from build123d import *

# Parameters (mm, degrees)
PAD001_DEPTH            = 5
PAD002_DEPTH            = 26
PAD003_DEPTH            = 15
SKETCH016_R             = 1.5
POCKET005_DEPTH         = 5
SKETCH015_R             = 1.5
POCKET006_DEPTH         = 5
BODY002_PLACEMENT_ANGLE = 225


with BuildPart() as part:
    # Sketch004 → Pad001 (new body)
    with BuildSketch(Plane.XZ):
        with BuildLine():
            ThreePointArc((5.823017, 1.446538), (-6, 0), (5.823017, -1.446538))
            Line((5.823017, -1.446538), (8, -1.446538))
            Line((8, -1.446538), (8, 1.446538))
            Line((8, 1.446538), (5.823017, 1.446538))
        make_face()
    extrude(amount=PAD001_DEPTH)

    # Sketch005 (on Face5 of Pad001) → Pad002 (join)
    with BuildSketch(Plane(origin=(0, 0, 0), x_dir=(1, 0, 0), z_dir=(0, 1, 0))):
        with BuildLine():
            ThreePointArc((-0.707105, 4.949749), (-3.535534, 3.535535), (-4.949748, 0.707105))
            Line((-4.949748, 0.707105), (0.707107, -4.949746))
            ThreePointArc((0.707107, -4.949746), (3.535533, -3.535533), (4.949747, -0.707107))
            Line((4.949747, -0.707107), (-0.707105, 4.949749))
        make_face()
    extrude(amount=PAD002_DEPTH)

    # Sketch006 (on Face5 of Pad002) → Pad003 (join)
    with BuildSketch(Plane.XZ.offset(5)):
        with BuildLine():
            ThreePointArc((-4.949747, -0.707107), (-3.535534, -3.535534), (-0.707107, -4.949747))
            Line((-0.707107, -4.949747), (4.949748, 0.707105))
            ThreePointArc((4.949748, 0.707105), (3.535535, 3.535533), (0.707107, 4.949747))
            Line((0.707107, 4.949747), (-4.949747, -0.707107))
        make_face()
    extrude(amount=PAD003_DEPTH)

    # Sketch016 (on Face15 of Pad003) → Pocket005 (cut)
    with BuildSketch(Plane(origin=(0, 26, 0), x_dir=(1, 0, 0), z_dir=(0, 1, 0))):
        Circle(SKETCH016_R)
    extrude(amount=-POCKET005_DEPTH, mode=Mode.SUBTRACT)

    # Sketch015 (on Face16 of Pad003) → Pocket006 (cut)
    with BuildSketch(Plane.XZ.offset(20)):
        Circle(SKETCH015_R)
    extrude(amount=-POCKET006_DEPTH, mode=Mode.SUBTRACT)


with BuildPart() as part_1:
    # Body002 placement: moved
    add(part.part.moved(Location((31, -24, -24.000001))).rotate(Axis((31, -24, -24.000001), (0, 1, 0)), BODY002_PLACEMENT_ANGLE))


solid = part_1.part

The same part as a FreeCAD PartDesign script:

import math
import FreeCAD as App
import Part
import Sketcher

V = App.Vector
Q = App.Units.Quantity

doc = App.newDocument("Part")
params = doc.addObject("Spreadsheet::Sheet", "Params")
for row, (alias, value) in enumerate([
    ("sketch1_radius", "6 mm"),
    ("pad1_length", "5 mm"),
    ("sketch2_radius", "5 mm"),
    ("sketch2_length", "7.999998 mm"),
    ("pad2_length", "26 mm"),
    ("sketch3_radius", "4.999999 mm"),
    ("sketch3_length", "7.999999 mm"),
    ("pad3_length", "15 mm"),
    ("sketch4_diameter", "3 mm"),
    ("pocket1_length", "5 mm"),
    ("sketch5_diameter", "3 mm"),
    ("pocket2_length", "5 mm"),
], start=1):
    params.set(f"A{row}", alias)
    params.set(f"B{row}", "=" + value)
    params.setAlias(f"B{row}", alias)

body = doc.addObject("PartDesign::Body", "Body")

# Sketch on XZ plane
sketch1 = doc.addObject("Sketcher::SketchObject", "Sketch")
body.addObject(sketch1)
sketch1.AttachmentSupport = (doc.XZ_Plane, [""])
sketch1.MapMode = "FlatFace"
sketch1.addGeometry([
    Part.ArcOfCircle(Part.Circle(V(0, 0, 0), V(0, 0, 1), 6), math.radians(14), math.radians(346)),
    Part.LineSegment(V(5.8, -1.4, 0), V(8, -1.4, 0)),
    Part.LineSegment(V(8, -1.4, 0), V(8, 1.4, 0)),
    Part.LineSegment(V(8, 1.4, 0), V(5.8, 1.4, 0)),
], False)
sketch1.addConstraint([
    Sketcher.Constraint("Coincident", 0, 2, 1, 1),
    Sketcher.Constraint("Coincident", 1, 2, 2, 1),
    Sketcher.Constraint("Coincident", 2, 2, 3, 1),
    Sketcher.Constraint("Coincident", 3, 2, 0, 1),
    Sketcher.Constraint("Horizontal", 1),
    Sketcher.Constraint("Vertical", 2),
    Sketcher.Constraint("Horizontal", 3),
    Sketcher.Constraint("Coincident", 0, 3, -1, 1),
    Sketcher.Constraint("Vertical", 0, 2, 3, 2),
    Sketcher.Constraint("Radius", 0, Q("6 mm")),
    Sketcher.Constraint("DistanceX", -1, 1, 1, 2, Q("8 mm")),
    Sketcher.Constraint("DistanceX", 1, 1, 1, 2, Q("2.176983 mm")),
])
sketch1.setExpression("Constraints[9]", "Params.sketch1_radius")
pad1 = doc.addObject("PartDesign::Pad", "Pad")
body.addObject(pad1)
pad1.Profile = sketch1
pad1.setExpression("Length", "Params.pad1_length")

# Sketch on XZ plane
sketch2 = doc.addObject("Sketcher::SketchObject", "Sketch001")
body.addObject(sketch2)
sketch2.AttachmentSupport = (doc.XZ_Plane, [""])
sketch2.MapMode = "FlatFace"
sketch2.addGeometry([
    Part.ArcOfCircle(Part.Circle(V(0, 0, 0), V(0, 0, 1), 5), math.radians(-172), math.radians(-98)),
    Part.LineSegment(V(-5, -1, 0), V(1, 5, 0)),
    Part.ArcOfCircle(Part.Circle(V(0, 0, 0), V(0, 0, 1), 5), math.radians(8), math.radians(82)),
    Part.LineSegment(V(5, 1, 0), V(-1, -5, 0)),
], False)
sketch2.addConstraint([
    Sketcher.Constraint("Coincident", 0, 1, 1, 1),
    Sketcher.Constraint("Coincident", 1, 2, 2, 2),
    Sketcher.Constraint("Coincident", 2, 1, 3, 1),
    Sketcher.Constraint("Coincident", 3, 2, 0, 2),
    Sketcher.Constraint("Coincident", 0, 3, -1, 1),
    Sketcher.Constraint("Coincident", 2, 3, -1, 1),
    Sketcher.Constraint("Equal", 0, 2),
    Sketcher.Constraint("Parallel", 1, 3),
    Sketcher.Constraint("Equal", 1, 3),
    Sketcher.Constraint("Radius", 0, Q("5 mm")),
    Sketcher.Constraint("Distance", 1, Q("7.999998 mm")),
    Sketcher.Constraint("DistanceX", 0, 1, -1, 1, Q("4.949748 mm")),
])
sketch2.setExpression("Constraints[9]", "Params.sketch2_radius")
sketch2.setExpression("Constraints[10]", "Params.sketch2_length")
pad2 = doc.addObject("PartDesign::Pad", "Pad001")
body.addObject(pad2)
pad2.Profile = sketch2
pad2.setExpression("Length", "Params.pad2_length")
pad2.Reversed = True

# Sketch on XZ plane
sketch3 = doc.addObject("Sketcher::SketchObject", "Sketch002")
body.addObject(sketch3)
sketch3.AttachmentSupport = (doc.XZ_Plane, [""])
sketch3.MapMode = "FlatFace"
sketch3.AttachmentOffset = App.Placement(V(0, 0, 5), App.Rotation())
sketch3.addGeometry([
    Part.ArcOfCircle(Part.Circle(V(0, 0, 0), V(0, 0, 1), 5), math.radians(-172), math.radians(-98)),
    Part.LineSegment(V(-0.7, -4.9, 0), V(4.9, 0.7, 0)),
    Part.ArcOfCircle(Part.Circle(V(0, 0, 0), V(0, 0, 1), 5), math.radians(8), math.radians(82)),
    Part.LineSegment(V(0.7, 4.9, 0), V(-4.9, -0.7, 0)),
], False)
sketch3.addConstraint([
    Sketcher.Constraint("Coincident", 0, 2, 1, 1),
    Sketcher.Constraint("Coincident", 1, 2, 2, 1),
    Sketcher.Constraint("Coincident", 2, 2, 3, 1),
    Sketcher.Constraint("Coincident", 3, 2, 0, 1),
    Sketcher.Constraint("Coincident", 0, 3, -1, 1),
    Sketcher.Constraint("Coincident", 2, 3, -1, 1),
    Sketcher.Constraint("Equal", 0, 2),
    Sketcher.Constraint("Parallel", 1, 3),
    Sketcher.Constraint("Equal", 1, 3),
    Sketcher.Constraint("Radius", 2, Q("4.999999 mm")),
    Sketcher.Constraint("Angle", 1, Q("44.999985 deg")),
    Sketcher.Constraint("Distance", 1, Q("7.999999 mm")),
])
sketch3.setExpression("Constraints[9]", "Params.sketch3_radius")
sketch3.setExpression("Constraints[11]", "Params.sketch3_length")
pad3 = doc.addObject("PartDesign::Pad", "Pad002")
body.addObject(pad3)
pad3.Profile = sketch3
pad3.setExpression("Length", "Params.pad3_length")

# Sketch on XZ plane
sketch4 = doc.addObject("Sketcher::SketchObject", "Sketch003")
body.addObject(sketch4)
sketch4.AttachmentSupport = (doc.XZ_Plane, [""])
sketch4.MapMode = "FlatFace"
sketch4.AttachmentOffset = App.Placement(V(0, 0, -26), App.Rotation())
sketch4.addGeometry(Part.Circle(V(0, 0, 0), V(0, 0, 1), 1.5), False)
sketch4.addConstraint([
    Sketcher.Constraint("Coincident", 0, 3, -1, 1),
    Sketcher.Constraint("Diameter", 0, Q("3 mm")),
])
sketch4.setExpression("Constraints[1]", "Params.sketch4_diameter")
pocket1 = doc.addObject("PartDesign::Pocket", "Pocket")
body.addObject(pocket1)
pocket1.Profile = sketch4
pocket1.setExpression("Length", "Params.pocket1_length")
pocket1.Reversed = True

# Sketch on XZ plane
sketch5 = doc.addObject("Sketcher::SketchObject", "Sketch004")
body.addObject(sketch5)
sketch5.AttachmentSupport = (doc.XZ_Plane, [""])
sketch5.MapMode = "FlatFace"
sketch5.AttachmentOffset = App.Placement(V(0, 0, 20), App.Rotation())
sketch5.addGeometry(Part.Circle(V(0, 0, 0), V(0, 0, 1), 1.5), False)
sketch5.addConstraint([
    Sketcher.Constraint("Coincident", 0, 3, -1, 1),
    Sketcher.Constraint("Diameter", 0, Q("3 mm")),
])
sketch5.setExpression("Constraints[1]", "Params.sketch5_diameter")
pocket2 = doc.addObject("PartDesign::Pocket", "Pocket001")
body.addObject(pocket2)
pocket2.Profile = sketch5
pocket2.setExpression("Length", "Params.pocket2_length")
body2 = doc.addObject("PartDesign::Body", "Body001")
doc.recompute()

body.Placement = App.Placement(V(31, -24, -24.000001), App.Rotation(V(0, 1, 0), 225))
boolean = doc.addObject("PartDesign::Boolean", "Boolean")
body2.addObject(boolean)
boolean.Type = "Fuse"
boolean.addObjects([body])

doc.recompute()
